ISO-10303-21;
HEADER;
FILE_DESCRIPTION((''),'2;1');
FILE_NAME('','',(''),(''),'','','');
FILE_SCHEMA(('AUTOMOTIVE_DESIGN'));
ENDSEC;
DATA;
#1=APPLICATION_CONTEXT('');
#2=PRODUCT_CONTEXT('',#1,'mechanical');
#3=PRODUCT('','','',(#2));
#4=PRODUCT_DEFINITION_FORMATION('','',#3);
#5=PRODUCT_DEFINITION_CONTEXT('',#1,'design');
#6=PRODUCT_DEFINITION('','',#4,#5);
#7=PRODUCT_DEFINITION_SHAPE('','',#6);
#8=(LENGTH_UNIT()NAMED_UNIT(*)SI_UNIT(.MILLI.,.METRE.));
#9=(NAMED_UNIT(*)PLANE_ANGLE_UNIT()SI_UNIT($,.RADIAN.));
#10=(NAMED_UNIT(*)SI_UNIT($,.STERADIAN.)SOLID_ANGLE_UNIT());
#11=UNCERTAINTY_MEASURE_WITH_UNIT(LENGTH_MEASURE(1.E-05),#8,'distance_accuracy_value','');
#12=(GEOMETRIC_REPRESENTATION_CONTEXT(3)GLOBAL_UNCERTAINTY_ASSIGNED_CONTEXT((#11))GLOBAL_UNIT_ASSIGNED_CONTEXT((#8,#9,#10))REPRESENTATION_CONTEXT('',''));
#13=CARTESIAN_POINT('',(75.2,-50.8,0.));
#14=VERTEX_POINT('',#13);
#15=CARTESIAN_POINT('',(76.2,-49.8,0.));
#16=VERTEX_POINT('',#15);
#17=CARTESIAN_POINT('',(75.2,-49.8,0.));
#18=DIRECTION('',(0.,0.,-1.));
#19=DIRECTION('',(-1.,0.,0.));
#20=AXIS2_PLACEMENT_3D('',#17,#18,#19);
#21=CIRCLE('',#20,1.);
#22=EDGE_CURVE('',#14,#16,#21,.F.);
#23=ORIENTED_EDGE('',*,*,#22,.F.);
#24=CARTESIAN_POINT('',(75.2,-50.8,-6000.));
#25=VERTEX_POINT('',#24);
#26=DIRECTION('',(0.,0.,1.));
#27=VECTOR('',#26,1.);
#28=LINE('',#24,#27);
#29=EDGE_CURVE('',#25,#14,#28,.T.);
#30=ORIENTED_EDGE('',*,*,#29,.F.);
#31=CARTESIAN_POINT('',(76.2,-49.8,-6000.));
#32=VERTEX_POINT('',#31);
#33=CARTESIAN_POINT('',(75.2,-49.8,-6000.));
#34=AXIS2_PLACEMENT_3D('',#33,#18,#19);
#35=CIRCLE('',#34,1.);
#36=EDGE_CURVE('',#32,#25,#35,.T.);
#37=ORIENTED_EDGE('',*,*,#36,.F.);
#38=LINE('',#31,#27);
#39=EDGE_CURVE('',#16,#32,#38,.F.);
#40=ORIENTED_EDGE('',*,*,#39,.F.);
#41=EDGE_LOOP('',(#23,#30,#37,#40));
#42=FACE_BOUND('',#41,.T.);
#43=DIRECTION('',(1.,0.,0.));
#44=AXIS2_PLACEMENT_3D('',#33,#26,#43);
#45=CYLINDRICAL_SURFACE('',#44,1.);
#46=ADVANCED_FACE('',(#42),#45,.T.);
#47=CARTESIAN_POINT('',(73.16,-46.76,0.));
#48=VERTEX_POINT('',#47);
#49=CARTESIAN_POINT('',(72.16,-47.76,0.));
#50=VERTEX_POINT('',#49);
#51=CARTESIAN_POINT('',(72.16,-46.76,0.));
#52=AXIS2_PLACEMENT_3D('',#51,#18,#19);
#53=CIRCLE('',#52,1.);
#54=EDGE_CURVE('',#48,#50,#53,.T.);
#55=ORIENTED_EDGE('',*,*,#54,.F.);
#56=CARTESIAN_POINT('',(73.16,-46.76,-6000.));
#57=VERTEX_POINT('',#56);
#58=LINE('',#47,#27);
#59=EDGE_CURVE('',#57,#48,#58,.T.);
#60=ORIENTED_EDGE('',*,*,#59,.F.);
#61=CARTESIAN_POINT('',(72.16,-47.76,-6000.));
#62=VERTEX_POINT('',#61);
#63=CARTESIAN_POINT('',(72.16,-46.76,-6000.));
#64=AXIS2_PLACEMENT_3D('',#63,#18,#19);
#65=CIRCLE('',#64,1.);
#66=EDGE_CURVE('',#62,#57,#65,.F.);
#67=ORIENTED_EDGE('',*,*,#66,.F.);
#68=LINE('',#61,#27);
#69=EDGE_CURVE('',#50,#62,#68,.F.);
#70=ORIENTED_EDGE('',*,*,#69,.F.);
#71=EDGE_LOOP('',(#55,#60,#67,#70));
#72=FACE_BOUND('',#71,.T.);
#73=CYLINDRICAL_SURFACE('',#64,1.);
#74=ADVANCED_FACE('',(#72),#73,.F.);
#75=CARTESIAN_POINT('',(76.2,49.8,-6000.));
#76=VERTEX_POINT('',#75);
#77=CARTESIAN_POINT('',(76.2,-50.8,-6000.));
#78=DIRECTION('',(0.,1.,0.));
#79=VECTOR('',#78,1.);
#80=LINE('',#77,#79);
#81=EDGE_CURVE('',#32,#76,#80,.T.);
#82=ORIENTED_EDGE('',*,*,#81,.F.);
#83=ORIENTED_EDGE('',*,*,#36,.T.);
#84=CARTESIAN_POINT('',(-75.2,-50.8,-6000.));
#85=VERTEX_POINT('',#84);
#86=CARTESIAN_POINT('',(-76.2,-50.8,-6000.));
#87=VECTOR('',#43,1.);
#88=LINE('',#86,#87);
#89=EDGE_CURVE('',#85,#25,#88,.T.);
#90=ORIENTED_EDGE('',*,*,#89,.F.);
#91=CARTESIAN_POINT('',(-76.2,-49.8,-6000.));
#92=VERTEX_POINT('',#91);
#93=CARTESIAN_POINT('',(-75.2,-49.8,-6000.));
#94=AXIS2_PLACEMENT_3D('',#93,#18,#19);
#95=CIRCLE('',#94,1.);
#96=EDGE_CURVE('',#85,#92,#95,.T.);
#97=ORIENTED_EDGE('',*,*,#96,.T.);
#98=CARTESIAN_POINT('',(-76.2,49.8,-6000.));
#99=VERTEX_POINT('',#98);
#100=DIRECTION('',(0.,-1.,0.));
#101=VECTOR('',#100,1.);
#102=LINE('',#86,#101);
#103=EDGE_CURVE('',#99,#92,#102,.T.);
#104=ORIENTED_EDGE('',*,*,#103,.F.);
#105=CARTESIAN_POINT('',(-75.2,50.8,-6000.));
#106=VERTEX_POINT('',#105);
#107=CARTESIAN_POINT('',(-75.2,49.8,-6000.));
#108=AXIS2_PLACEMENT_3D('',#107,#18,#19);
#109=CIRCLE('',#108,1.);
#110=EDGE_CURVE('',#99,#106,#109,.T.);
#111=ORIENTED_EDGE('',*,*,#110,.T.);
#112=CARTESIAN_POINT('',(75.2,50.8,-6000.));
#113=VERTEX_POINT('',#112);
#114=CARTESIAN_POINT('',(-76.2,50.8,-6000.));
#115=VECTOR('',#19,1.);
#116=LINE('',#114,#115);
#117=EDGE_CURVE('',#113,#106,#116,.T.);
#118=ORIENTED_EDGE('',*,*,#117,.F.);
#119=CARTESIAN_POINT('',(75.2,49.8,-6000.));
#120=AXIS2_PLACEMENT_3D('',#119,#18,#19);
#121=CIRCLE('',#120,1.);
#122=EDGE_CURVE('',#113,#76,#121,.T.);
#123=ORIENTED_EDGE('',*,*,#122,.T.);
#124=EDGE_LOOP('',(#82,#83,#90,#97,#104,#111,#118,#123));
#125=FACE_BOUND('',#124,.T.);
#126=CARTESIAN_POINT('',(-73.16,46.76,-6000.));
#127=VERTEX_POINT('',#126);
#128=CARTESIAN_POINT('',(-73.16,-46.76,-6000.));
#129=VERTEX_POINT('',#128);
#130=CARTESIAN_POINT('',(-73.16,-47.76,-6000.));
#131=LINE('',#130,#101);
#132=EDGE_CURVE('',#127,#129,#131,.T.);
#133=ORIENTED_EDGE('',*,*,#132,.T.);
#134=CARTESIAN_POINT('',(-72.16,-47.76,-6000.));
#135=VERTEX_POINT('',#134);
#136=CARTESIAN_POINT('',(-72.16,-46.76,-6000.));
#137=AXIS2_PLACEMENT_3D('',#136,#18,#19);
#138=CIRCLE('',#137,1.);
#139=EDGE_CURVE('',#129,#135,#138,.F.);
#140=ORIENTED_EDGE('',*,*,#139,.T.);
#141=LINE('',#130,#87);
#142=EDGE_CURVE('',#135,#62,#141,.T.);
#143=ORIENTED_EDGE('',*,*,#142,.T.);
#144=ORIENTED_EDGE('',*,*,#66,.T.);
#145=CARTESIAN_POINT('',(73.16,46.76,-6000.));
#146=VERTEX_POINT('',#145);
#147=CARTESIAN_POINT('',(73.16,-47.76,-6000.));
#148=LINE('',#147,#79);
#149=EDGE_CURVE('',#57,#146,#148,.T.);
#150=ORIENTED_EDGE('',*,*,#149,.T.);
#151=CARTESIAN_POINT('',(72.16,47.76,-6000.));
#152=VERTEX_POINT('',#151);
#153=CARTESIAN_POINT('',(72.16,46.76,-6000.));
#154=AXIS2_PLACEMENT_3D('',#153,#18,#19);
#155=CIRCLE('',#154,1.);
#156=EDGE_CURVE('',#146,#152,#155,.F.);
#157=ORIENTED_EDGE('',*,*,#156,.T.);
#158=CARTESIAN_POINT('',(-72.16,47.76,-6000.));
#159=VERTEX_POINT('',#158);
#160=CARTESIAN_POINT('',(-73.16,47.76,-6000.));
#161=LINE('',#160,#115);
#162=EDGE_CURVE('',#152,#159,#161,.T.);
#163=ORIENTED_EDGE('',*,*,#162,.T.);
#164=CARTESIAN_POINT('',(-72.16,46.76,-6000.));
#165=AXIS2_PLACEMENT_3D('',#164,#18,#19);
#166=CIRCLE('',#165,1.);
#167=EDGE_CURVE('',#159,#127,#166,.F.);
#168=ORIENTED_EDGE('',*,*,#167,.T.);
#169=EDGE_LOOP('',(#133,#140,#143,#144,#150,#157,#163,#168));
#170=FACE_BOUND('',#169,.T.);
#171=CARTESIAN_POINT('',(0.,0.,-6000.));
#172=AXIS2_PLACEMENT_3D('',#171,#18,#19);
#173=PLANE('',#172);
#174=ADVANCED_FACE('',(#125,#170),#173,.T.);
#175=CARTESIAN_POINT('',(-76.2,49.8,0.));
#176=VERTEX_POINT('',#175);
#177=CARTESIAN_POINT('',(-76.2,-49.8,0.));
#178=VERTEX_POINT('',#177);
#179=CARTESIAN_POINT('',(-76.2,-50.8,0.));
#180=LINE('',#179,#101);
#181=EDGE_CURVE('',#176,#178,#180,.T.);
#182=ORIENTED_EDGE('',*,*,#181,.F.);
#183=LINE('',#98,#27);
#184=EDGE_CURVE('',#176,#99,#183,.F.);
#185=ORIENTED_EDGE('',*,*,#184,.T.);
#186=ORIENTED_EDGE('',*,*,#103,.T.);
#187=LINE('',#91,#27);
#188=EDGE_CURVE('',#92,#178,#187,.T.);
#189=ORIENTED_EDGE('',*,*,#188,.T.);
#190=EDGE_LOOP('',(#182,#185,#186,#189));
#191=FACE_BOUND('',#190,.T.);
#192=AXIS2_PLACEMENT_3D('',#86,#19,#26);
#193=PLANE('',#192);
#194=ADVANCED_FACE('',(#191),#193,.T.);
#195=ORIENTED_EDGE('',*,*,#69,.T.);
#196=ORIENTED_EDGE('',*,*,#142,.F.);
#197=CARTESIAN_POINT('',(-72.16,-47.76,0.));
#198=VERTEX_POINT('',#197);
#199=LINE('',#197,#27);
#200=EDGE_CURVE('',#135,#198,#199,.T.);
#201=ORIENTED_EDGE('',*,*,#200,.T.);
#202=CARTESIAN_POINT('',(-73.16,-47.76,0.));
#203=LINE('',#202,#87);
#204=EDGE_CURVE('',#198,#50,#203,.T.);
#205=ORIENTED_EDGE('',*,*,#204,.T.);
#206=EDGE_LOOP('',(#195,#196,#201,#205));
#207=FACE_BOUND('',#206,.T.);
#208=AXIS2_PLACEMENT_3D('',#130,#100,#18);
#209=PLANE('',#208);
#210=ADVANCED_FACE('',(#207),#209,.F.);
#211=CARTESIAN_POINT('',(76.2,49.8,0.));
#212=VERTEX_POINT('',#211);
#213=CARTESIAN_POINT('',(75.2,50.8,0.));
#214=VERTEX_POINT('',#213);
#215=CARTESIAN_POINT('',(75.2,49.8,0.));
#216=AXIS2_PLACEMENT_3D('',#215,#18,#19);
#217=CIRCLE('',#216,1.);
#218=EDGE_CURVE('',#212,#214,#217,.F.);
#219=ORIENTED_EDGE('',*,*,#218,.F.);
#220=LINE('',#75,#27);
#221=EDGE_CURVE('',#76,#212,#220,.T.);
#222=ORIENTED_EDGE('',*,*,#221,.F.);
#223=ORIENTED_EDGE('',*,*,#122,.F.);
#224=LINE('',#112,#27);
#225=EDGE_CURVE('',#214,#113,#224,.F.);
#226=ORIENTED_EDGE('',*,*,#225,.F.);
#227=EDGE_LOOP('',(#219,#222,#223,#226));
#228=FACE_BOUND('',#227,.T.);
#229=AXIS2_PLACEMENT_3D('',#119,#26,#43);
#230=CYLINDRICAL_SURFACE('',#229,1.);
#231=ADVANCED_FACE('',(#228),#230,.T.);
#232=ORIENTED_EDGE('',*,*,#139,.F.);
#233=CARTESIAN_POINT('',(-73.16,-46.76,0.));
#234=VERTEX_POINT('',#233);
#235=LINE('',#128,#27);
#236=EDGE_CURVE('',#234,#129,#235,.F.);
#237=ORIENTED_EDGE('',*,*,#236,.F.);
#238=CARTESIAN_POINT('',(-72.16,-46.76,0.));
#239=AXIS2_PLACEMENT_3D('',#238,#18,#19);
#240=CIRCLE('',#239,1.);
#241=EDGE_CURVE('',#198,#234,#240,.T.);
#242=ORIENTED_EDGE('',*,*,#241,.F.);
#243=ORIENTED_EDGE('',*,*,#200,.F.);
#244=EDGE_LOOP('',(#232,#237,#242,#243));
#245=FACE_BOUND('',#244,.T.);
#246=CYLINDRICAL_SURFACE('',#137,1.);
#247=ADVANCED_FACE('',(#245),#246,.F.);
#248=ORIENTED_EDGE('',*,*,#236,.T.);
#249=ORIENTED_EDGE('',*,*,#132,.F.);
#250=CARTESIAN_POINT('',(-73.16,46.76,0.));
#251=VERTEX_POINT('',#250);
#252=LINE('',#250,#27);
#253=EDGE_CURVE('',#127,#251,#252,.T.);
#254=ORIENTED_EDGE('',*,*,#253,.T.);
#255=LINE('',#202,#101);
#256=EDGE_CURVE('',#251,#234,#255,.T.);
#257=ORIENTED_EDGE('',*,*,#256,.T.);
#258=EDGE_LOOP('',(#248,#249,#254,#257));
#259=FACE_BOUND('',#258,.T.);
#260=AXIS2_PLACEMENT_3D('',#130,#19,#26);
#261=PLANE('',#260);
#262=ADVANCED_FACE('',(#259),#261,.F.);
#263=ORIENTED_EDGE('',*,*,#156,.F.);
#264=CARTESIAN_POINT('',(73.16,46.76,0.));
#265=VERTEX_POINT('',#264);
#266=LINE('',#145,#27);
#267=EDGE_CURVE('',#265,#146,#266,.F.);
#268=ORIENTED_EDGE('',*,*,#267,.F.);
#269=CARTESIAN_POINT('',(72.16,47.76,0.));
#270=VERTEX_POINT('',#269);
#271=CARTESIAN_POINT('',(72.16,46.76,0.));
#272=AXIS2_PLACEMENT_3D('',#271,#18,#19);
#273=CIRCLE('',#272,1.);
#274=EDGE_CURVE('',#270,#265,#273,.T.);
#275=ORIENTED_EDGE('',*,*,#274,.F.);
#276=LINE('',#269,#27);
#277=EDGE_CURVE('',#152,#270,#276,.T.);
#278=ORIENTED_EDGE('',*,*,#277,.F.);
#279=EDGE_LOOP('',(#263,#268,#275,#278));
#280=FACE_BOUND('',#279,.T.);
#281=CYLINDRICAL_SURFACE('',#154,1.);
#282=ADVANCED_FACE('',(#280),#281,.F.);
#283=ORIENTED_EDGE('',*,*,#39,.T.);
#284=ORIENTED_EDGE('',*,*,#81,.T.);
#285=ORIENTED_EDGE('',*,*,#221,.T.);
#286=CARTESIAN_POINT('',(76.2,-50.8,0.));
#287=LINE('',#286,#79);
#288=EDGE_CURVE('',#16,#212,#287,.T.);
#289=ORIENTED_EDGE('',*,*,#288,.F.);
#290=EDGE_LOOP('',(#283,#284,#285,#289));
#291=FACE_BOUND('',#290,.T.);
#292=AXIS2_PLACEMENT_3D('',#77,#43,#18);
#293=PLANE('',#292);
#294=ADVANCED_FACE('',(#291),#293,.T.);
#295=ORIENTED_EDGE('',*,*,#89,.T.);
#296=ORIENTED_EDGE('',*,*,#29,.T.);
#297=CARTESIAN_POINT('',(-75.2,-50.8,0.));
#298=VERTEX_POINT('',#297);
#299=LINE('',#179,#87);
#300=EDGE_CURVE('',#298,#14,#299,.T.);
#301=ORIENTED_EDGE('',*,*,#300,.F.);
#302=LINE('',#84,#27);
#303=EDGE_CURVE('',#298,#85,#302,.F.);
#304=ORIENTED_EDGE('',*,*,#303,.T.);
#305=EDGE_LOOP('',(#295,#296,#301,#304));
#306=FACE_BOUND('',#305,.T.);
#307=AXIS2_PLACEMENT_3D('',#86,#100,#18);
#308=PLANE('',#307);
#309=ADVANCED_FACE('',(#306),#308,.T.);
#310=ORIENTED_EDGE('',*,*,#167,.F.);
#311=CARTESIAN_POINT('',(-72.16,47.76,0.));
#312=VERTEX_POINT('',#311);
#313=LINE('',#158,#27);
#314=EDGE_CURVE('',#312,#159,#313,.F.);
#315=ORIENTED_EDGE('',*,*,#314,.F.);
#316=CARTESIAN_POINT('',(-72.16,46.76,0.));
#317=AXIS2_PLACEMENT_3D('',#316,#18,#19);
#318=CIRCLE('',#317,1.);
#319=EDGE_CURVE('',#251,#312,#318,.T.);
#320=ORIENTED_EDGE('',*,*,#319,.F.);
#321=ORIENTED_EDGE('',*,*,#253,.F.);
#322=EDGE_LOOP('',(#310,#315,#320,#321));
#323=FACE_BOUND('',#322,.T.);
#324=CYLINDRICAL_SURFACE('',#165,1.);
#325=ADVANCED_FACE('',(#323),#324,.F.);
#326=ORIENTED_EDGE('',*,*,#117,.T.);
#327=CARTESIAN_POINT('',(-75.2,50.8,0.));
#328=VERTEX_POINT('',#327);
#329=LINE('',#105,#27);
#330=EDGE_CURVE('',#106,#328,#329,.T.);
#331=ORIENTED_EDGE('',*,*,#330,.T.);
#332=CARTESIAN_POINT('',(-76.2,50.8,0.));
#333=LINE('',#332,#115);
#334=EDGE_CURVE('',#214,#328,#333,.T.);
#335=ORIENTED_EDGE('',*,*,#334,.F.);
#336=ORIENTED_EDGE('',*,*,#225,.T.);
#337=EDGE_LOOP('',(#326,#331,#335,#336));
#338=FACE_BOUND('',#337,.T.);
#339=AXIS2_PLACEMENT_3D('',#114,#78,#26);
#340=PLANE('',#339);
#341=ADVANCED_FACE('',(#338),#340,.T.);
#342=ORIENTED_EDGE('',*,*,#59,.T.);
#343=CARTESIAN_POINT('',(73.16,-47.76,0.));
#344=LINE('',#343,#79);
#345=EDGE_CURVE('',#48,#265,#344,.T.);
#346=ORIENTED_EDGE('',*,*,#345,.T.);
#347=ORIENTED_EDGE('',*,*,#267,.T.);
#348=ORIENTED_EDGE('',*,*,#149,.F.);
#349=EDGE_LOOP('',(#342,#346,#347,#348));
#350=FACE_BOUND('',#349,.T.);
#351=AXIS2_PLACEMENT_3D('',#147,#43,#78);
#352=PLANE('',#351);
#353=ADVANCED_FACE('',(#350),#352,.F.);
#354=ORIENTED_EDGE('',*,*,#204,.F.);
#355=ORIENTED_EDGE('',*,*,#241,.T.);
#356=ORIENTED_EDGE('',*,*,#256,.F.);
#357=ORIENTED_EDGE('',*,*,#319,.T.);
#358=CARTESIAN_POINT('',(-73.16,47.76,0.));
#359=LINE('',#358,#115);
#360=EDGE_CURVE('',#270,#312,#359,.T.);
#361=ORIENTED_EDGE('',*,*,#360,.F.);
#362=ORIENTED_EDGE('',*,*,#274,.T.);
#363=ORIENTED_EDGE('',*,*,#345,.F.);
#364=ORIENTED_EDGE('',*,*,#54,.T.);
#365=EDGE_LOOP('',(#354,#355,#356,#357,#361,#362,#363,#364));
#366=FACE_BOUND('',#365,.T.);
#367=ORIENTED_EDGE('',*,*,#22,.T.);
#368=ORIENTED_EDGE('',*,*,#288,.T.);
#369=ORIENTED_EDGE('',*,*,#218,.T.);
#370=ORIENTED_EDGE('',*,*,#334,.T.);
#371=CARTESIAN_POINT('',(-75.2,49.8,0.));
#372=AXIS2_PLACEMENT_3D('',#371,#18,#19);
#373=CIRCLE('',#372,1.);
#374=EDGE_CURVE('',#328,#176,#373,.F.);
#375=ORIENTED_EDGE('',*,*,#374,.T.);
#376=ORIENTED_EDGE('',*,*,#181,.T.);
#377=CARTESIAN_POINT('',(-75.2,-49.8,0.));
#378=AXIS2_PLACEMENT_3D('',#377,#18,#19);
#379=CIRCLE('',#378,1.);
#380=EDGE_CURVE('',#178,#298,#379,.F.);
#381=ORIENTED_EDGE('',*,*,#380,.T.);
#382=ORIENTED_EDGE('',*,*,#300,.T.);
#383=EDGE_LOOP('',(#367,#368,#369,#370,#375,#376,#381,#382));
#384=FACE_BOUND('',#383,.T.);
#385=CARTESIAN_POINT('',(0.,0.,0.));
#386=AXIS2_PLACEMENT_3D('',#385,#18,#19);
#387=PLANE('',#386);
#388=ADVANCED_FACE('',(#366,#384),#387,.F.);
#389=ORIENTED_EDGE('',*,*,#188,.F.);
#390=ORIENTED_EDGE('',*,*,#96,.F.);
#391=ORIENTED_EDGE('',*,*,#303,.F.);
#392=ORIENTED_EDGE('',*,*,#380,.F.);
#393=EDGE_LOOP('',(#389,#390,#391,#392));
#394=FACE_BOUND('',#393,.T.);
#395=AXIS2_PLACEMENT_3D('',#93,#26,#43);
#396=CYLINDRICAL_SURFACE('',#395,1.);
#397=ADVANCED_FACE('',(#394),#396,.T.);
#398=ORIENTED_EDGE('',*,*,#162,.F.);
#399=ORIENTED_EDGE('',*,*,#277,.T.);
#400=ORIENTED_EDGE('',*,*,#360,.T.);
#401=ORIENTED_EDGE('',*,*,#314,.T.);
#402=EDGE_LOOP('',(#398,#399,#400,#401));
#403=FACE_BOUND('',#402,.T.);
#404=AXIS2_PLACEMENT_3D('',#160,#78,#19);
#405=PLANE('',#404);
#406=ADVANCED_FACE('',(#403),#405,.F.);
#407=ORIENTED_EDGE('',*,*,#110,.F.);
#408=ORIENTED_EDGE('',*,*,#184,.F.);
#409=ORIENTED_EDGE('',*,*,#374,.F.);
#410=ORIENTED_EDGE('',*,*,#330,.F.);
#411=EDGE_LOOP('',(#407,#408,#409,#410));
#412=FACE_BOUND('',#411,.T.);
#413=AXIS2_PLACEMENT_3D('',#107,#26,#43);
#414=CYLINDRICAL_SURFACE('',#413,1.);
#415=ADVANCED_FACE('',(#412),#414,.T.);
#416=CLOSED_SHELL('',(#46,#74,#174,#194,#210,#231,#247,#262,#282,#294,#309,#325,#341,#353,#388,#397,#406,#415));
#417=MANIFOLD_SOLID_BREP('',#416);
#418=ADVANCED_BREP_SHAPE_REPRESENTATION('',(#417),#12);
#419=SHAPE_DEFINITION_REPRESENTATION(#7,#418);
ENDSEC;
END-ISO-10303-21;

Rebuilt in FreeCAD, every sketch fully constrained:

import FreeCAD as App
import Part
import Sketcher


def edges_at(feature, points):
    """Names of the edges that pass closest to the given points."""
    edges = feature.Shape.Edges
    near = lambda p: min(range(len(edges)), key=lambda i: edges[i].distToShape(Part.Vertex(*p))[0])
    return sorted({f"Edge{near(p) + 1}" for p in points})


def add_polygon(sketch, points):
    """Adds a closed chain of lines whose ends are joined by coincident constraints."""
    first, n = sketch.GeometryCount, len(points)
    for a, b in zip(points, points[1:] + points[:1]):
        sketch.addGeometry(Part.LineSegment(App.Vector(*a, 0), App.Vector(*b, 0)), False)
    for i in range(n):
        sketch.addConstraint(Sketcher.Constraint("Coincident", first + i, 2, first + (i + 1) % n, 1))

doc = App.newDocument("Part")
body = doc.addObject("PartDesign::Body", "Body")

# Sketch on XY plane
sketch1 = body.newObject("Sketcher::SketchObject", "Sketch")
sketch1.AttachmentSupport = (doc.getObject("XY_Plane"), [""])
sketch1.MapMode = "FlatFace"
add_polygon(sketch1, [(-76.2, 50.8), (-76.2, -50.8), (76.2, -50.8), (76.2, 50.8)])  # lines 0-3
add_polygon(sketch1, [(73.16, -47.76), (-73.16, -47.76), (-73.16, 47.76), (73.16, 47.76)])  # lines 4-7
sketch1.addConstraint(Sketcher.Constraint("Vertical", 0))
sketch1.addConstraint(Sketcher.Constraint("Horizontal", 1))
sketch1.addConstraint(Sketcher.Constraint("Vertical", 2))
sketch1.addConstraint(Sketcher.Constraint("Horizontal", 3))
sketch1.addConstraint(Sketcher.Constraint("Horizontal", 4))
sketch1.addConstraint(Sketcher.Constraint("Vertical", 5))
sketch1.addConstraint(Sketcher.Constraint("Horizontal", 6))
sketch1.addConstraint(Sketcher.Constraint("Vertical", 7))
sketch1.addConstraint(Sketcher.Constraint("Symmetric", 0, 2, 2, 2, -1, 1))
sketch1.addConstraint(Sketcher.Constraint("Symmetric", 4, 2, 6, 2, -1, 1))
sketch1.addConstraint(Sketcher.Constraint("DistanceX", 1, 1, 1, 2, 152.4))
sketch1.addConstraint(Sketcher.Constraint("DistanceY", 0, 2, 0, 1, 101.6))
sketch1.addConstraint(Sketcher.Constraint("DistanceX", 4, 2, 4, 1, 146.32))
sketch1.addConstraint(Sketcher.Constraint("DistanceY", 5, 1, 5, 2, 95.52))
pad1 = body.newObject("PartDesign::Pad", "Pad")
pad1.Profile = sketch1
pad1.Length = 6000
pad1.Reversed = True
doc.recompute()

fillet = body.newObject("PartDesign::Fillet", "Fillet")
fillet.Base = (pad1, edges_at(pad1, [
    (73.16, -47.76, -3000),
    (-73.16, -47.76, -3000),
    (-73.16, 47.76, -3000),
    (73.16, 47.76, -3000),
    (76.2, -50.8, -3000),
    (-76.2, -50.8, -3000),
    (-76.2, 50.8, -3000),
    (76.2, 50.8, -3000),
]))
fillet.Radius = 1

doc.recompute()
